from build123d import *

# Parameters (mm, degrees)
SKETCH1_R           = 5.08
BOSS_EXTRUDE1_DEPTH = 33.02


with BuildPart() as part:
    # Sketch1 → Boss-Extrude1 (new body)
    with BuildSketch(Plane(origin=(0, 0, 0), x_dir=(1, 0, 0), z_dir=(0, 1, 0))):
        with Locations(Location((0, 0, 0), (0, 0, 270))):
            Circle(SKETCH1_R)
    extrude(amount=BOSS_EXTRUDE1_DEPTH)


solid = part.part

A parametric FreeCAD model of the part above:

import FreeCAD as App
import Part
import Sketcher
Q = App.Units.Quantity

doc = App.newDocument("Part")
body = doc.addObject("PartDesign::Body", "Body")

sketch1 = body.newObject("Sketcher::SketchObject", "Sketch")
sketch1.AttachmentSupport = (doc.getObject("XZ_Plane"), [""])
sketch1.MapMode = "FlatFace"
sketch1.addGeometry(Part.Circle(App.Vector(0, 0, 0), App.Vector(0, 0, 1), 5), False)
sketch1.addConstraint(Sketcher.Constraint("Coincident", 0, 3, -1, 1))
sketch1.addConstraint(Sketcher.Constraint("Diameter", 0, Q("0.4 in")))
pad1 = body.newObject("PartDesign::Pad", "Pad")
pad1.Profile = sketch1
pad1.Length = Q("1.3 in")
pad1.Reversed = True

doc.recompute()
